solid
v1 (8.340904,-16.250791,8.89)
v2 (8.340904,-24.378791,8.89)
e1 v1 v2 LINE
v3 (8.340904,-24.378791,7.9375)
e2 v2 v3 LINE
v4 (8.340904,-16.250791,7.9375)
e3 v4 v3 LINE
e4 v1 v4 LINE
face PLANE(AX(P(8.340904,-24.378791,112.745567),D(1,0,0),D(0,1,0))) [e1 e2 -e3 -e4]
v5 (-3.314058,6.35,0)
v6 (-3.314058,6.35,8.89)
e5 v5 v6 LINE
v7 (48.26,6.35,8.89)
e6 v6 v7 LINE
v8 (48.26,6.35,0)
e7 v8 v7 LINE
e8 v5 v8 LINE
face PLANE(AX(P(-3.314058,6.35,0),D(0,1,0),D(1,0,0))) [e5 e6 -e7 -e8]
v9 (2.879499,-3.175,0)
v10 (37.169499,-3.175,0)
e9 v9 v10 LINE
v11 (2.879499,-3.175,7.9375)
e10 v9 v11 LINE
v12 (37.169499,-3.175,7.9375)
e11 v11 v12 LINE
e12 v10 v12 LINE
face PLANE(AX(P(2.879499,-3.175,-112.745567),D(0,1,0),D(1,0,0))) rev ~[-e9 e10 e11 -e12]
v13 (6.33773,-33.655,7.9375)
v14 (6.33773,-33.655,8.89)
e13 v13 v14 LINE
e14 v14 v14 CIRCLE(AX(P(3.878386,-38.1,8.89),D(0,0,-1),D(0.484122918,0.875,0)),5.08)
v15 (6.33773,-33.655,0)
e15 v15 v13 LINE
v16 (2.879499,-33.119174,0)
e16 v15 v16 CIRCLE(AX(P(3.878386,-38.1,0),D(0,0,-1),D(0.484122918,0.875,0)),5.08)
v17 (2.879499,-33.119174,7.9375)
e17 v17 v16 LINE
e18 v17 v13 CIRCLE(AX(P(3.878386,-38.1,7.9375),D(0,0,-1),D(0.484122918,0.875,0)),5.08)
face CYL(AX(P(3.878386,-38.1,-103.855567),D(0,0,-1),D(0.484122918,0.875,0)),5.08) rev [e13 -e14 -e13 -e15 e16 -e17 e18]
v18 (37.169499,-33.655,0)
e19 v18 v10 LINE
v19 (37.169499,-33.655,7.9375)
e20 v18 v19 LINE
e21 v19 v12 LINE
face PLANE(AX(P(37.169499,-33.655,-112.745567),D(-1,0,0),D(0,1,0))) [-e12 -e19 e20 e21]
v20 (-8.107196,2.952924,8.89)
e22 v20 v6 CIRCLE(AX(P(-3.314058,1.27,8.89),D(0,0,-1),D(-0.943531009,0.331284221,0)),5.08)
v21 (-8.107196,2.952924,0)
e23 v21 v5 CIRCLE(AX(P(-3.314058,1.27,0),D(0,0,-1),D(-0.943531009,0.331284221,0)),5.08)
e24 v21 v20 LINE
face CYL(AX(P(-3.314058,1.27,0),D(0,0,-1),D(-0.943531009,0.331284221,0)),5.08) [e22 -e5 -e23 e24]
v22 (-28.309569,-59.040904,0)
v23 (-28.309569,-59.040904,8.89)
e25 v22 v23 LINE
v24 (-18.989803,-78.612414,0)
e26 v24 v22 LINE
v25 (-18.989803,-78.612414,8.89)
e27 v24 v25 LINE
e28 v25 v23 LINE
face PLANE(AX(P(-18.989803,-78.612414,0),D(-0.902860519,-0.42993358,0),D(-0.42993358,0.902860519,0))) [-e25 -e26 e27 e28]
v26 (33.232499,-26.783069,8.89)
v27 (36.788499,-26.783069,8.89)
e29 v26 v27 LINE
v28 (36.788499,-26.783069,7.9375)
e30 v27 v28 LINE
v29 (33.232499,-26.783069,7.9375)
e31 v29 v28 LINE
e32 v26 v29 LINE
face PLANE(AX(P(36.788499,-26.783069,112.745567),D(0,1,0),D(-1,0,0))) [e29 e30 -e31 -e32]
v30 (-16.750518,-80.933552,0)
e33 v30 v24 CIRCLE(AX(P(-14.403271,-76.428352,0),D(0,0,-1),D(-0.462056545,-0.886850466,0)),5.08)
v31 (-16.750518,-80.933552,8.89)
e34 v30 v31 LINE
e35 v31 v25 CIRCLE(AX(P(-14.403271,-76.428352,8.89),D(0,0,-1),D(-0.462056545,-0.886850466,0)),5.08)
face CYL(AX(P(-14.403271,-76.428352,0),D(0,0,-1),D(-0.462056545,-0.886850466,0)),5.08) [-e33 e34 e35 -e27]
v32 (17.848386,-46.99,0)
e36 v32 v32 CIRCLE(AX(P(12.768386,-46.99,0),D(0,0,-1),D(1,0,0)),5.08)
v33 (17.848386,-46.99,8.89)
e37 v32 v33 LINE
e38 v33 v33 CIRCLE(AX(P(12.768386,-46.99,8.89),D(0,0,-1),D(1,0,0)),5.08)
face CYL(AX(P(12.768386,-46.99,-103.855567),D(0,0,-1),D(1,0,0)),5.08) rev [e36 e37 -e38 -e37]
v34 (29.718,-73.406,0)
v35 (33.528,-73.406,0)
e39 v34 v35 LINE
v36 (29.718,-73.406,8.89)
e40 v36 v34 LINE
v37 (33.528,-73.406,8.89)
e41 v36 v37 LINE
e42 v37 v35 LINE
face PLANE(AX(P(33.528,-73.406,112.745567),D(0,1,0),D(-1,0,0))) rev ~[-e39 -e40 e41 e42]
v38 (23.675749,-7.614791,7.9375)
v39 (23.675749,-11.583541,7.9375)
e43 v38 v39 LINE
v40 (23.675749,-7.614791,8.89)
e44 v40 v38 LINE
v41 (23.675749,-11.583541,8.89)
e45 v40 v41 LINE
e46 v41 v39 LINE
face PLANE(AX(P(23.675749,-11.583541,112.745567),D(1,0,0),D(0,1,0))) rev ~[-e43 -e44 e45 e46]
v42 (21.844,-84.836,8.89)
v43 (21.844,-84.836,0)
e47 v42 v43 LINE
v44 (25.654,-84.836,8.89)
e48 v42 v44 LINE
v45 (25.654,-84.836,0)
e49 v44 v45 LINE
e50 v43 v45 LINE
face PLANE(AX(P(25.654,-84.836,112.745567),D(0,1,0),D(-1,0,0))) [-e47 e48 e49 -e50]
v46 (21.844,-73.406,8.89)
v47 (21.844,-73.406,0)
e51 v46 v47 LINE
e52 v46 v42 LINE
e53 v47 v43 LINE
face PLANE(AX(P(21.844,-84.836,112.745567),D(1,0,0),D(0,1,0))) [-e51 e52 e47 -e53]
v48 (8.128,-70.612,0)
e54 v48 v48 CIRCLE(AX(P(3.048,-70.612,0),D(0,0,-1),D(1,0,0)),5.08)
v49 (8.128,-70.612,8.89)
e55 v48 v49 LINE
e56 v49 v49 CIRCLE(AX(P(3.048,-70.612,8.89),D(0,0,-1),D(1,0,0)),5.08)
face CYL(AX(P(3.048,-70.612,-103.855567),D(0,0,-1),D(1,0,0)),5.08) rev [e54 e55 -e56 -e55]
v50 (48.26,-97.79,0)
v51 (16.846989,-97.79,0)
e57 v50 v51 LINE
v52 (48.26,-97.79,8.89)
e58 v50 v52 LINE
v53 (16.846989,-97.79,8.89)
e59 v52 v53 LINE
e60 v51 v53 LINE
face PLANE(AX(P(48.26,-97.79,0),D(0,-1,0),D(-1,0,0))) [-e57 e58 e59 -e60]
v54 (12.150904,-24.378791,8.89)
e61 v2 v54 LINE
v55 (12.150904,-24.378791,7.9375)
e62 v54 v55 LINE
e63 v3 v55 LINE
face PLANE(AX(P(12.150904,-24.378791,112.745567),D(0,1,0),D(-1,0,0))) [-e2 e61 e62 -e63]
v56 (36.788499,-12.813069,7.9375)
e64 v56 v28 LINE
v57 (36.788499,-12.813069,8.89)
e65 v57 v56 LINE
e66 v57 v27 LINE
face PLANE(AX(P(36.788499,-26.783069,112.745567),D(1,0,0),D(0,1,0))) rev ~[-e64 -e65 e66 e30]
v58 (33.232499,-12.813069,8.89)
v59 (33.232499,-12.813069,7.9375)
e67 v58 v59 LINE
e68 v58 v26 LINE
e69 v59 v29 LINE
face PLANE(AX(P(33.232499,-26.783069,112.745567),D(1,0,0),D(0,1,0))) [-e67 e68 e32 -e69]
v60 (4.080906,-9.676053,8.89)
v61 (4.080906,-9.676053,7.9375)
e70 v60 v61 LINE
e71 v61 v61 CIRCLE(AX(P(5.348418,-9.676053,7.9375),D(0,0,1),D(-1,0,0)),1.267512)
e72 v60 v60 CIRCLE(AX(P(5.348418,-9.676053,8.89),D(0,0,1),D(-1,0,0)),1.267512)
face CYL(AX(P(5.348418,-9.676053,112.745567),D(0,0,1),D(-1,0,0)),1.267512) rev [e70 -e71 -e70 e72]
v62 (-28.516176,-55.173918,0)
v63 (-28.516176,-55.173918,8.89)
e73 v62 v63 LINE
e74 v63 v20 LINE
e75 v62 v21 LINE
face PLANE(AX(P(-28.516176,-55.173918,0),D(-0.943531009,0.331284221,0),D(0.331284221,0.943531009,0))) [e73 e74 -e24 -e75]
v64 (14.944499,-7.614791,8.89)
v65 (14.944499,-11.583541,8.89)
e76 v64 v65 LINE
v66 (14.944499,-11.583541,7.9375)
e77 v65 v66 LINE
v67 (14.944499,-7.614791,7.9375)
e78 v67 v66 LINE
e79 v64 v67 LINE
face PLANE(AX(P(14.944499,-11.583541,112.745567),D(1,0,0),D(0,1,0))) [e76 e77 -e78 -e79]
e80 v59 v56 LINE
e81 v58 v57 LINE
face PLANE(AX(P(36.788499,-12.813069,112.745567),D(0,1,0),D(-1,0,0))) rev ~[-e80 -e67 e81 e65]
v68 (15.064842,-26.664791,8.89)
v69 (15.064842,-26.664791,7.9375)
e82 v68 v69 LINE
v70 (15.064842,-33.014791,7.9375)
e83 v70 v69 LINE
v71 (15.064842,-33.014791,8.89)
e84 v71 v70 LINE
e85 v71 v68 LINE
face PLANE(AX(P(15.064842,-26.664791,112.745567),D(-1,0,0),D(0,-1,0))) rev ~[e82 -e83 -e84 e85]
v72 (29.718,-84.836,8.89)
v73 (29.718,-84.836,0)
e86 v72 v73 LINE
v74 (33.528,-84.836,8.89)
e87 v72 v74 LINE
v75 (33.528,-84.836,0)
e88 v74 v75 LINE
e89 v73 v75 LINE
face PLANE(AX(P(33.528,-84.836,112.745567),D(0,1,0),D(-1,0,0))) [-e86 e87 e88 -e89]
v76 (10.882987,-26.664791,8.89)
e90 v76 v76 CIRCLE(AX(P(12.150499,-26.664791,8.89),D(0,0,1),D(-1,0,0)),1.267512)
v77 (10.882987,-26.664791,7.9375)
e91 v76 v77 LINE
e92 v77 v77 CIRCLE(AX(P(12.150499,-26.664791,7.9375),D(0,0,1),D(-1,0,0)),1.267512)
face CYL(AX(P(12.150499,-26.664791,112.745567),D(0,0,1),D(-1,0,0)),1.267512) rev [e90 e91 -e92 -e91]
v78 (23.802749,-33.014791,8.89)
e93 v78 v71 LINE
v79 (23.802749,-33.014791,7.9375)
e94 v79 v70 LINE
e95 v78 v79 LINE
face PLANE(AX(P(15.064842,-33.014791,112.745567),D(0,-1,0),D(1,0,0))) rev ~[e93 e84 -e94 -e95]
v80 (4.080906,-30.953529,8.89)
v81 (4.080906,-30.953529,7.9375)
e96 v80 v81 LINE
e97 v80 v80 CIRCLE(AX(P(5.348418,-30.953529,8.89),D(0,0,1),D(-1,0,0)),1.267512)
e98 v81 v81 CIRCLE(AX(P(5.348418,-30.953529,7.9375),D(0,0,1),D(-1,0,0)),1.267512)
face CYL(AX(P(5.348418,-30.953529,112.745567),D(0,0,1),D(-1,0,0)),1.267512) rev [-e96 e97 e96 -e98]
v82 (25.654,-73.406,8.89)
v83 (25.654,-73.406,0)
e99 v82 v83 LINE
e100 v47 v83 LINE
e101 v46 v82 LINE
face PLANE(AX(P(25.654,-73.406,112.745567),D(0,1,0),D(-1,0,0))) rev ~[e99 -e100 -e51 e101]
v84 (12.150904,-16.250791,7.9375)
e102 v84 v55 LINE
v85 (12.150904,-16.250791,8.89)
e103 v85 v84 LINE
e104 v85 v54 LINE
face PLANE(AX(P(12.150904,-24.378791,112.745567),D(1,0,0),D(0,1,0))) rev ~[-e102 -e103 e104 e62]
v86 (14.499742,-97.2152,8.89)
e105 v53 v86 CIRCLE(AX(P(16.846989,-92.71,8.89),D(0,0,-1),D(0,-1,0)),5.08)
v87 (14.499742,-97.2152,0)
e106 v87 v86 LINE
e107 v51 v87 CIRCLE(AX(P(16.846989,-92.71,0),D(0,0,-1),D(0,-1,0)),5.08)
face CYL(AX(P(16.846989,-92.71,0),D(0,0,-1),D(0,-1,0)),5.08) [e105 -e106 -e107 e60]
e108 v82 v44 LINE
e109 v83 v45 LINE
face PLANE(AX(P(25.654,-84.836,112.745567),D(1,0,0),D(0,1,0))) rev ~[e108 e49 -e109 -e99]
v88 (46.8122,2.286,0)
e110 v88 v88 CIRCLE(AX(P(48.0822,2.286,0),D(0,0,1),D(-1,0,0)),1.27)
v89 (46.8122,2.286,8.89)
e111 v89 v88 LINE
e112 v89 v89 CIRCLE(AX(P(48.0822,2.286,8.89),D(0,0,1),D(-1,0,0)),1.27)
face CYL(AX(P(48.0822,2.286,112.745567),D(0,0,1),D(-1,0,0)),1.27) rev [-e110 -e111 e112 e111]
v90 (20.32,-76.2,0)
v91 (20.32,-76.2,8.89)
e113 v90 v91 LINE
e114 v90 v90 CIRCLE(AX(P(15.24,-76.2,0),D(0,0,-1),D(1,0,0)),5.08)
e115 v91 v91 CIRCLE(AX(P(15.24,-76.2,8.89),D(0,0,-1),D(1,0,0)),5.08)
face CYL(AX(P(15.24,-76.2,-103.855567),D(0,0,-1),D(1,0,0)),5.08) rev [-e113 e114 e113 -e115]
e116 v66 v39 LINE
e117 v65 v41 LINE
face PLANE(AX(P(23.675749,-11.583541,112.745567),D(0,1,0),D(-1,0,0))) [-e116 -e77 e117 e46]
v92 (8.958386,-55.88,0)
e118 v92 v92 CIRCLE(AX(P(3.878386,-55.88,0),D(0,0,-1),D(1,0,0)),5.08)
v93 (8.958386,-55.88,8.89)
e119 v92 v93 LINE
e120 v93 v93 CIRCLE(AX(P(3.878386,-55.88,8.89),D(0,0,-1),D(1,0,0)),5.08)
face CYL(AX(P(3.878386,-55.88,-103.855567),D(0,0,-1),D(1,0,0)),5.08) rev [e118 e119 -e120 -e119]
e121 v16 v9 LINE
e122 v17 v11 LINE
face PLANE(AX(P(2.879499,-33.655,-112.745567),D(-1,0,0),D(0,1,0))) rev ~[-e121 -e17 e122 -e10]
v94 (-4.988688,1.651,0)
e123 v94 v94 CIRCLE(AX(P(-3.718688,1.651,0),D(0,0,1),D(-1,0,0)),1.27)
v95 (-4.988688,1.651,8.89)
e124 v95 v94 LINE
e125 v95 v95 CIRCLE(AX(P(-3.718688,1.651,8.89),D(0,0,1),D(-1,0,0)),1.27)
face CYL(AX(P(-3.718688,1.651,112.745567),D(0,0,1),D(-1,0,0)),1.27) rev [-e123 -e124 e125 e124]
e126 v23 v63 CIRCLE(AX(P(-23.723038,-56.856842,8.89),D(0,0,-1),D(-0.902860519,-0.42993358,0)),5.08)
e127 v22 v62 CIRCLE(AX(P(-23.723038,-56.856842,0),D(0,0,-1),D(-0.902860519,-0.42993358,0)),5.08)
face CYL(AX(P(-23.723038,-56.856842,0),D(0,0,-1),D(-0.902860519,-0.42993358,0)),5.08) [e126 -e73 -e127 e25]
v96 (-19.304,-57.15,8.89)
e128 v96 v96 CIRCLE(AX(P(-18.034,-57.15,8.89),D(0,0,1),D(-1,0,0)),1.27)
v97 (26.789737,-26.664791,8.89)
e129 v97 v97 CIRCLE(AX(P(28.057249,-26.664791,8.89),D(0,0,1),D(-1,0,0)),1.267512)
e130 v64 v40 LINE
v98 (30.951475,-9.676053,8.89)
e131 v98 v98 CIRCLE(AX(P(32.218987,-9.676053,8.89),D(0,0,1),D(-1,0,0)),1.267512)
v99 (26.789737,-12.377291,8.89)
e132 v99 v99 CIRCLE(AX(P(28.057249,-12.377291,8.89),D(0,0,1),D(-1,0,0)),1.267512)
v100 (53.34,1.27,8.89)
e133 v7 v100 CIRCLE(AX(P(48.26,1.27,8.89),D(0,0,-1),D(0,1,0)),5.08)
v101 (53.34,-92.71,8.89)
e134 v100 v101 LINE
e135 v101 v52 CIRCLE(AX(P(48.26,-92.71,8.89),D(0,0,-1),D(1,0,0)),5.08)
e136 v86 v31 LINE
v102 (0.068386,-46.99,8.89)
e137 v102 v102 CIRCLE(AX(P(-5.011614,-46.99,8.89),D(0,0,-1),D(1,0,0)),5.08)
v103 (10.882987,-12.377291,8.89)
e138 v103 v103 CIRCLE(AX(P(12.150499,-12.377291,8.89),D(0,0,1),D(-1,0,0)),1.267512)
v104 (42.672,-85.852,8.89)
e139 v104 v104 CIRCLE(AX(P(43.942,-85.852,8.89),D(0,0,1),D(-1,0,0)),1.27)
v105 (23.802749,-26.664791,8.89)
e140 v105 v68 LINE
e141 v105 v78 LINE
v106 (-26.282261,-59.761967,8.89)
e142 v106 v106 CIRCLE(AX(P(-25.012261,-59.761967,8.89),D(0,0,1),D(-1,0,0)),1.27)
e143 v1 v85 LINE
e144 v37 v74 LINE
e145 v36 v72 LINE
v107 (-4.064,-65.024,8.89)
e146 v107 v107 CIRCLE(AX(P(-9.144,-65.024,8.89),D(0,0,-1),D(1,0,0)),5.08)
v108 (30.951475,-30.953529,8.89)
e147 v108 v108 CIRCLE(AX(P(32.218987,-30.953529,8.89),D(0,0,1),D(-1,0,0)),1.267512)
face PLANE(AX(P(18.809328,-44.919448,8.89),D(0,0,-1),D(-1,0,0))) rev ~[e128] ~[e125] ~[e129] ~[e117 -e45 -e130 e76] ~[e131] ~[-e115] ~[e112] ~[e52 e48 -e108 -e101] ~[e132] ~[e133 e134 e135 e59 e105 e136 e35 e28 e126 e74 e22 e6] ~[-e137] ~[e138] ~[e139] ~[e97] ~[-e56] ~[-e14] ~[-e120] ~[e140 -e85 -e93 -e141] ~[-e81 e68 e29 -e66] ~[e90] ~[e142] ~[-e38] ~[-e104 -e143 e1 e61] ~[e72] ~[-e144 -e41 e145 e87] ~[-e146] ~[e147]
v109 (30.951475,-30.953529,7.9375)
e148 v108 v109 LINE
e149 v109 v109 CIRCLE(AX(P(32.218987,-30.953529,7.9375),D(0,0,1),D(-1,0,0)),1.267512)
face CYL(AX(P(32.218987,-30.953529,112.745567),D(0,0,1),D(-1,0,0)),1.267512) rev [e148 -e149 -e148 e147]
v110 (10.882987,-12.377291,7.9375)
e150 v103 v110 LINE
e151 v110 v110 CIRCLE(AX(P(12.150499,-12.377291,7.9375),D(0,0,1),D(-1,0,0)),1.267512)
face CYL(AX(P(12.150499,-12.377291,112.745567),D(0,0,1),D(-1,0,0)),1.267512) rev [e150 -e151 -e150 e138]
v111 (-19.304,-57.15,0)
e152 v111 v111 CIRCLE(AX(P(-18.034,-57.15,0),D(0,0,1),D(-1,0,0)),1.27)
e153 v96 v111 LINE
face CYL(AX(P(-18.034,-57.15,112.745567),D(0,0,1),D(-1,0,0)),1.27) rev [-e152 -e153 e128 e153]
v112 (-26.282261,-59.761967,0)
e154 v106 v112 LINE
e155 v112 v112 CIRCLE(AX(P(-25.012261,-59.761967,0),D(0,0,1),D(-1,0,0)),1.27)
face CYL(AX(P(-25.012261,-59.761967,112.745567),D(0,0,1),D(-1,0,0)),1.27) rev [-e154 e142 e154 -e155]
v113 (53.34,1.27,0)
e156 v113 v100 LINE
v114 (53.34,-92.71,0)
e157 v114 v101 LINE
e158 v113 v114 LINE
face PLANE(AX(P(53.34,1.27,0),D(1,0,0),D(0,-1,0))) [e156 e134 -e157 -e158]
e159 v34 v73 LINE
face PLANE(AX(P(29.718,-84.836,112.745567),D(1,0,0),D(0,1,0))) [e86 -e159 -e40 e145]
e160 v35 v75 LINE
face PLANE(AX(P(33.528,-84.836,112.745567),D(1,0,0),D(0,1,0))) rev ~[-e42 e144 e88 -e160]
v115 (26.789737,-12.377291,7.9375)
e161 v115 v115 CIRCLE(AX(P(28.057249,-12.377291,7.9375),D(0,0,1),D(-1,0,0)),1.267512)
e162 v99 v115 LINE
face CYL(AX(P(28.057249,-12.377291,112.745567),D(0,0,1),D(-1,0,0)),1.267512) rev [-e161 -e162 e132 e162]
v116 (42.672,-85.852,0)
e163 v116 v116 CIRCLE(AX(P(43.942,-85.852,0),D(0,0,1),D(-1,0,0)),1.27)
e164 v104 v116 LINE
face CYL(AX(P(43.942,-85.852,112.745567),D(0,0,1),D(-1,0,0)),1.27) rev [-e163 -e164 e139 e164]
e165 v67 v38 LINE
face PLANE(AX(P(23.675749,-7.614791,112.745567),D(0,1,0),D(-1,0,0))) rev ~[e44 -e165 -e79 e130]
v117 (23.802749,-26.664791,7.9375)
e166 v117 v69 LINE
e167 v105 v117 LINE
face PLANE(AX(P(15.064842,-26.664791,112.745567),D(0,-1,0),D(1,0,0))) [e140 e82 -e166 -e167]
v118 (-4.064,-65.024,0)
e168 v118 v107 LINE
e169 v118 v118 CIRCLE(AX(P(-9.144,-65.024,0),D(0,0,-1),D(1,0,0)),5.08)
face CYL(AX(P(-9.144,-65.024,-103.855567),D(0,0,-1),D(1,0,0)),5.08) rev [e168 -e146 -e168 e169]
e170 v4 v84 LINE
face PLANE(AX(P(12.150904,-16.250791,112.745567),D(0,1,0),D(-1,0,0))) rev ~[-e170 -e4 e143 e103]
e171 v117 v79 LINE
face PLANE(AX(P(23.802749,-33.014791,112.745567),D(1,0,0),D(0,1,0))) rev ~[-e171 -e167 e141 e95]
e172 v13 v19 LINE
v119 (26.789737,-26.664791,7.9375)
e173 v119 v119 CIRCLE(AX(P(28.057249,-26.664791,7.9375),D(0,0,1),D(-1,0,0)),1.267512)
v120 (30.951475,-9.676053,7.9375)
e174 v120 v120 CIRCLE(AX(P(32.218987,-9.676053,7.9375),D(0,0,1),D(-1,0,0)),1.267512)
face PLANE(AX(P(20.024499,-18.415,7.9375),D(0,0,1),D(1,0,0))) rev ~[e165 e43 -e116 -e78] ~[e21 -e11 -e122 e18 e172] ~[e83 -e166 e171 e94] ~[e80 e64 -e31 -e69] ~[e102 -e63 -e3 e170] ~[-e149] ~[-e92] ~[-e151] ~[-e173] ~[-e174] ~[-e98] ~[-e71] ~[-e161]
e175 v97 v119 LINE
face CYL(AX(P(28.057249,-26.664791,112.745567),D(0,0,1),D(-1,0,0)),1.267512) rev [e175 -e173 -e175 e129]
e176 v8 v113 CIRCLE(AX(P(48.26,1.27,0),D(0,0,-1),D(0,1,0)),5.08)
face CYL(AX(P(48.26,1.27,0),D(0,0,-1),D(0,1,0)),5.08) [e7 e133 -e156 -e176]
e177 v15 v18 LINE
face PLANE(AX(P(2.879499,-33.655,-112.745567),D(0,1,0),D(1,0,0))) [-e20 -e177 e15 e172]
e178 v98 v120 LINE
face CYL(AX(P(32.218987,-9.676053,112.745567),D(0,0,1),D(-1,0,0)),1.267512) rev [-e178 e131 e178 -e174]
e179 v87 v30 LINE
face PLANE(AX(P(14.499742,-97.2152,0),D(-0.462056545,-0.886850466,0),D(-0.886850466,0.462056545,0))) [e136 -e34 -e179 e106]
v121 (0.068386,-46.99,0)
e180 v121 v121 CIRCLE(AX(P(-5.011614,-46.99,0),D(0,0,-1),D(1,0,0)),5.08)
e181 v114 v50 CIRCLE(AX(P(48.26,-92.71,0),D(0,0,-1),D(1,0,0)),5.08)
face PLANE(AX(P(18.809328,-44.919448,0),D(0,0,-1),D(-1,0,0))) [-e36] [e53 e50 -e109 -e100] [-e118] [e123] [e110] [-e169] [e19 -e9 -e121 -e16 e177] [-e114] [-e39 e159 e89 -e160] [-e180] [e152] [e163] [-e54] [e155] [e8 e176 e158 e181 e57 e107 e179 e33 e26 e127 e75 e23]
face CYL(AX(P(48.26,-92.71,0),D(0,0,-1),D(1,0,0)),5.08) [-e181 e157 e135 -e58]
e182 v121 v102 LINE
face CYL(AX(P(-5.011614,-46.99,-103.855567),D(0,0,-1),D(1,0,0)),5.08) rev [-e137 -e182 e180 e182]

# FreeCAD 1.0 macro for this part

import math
import FreeCAD as App
import Part
import Sketcher

V = App.Vector
Q = App.Units.Quantity

doc = App.newDocument("Part")
body = doc.addObject("PartDesign::Body", "Body")

sketch1 = body.newObject("Sketcher::SketchObject", "Sketch")
sketch1.AttachmentSupport = (doc.getObject("XY_Plane"), [""])
sketch1.MapMode = "FlatFace"
sketch1.addGeometry(Part.LineSegment(V(48.26, 6.35, 0), V(-3.314058, 6.35, 0)), False)
sketch1.addGeometry(Part.ArcOfCircle(Part.Circle(V(-3.314058, 1.27, 0), V(0, 0, 1), 5.08), math.radians(90), math.radians(160.653259)), False)
sketch1.addGeometry(Part.LineSegment(V(-8.107196, 2.952924, 0), V(-28.516176, -55.173918, 0)), False)
sketch1.addGeometry(Part.ArcOfCircle(Part.Circle(V(-23.723038, -56.856842, 0), V(0, 0, 1), 5.08), math.radians(160.653259), math.radians(205.463345)), False)
sketch1.addGeometry(Part.LineSegment(V(-28.309569, -59.040904, 0), V(-18.989803, -78.612414, 0)), False)
sketch1.addGeometry(Part.ArcOfCircle(Part.Circle(V(-14.403271, -76.428352, 0), V(0, 0, 1), 5.08), math.radians(-154.536655), math.radians(-117.519892)), False)
sketch1.addGeometry(Part.LineSegment(V(-16.750518, -80.933552, 0), V(14.499742, -97.2152, 0)), False)
sketch1.addGeometry(Part.ArcOfCircle(Part.Circle(V(16.846989, -92.71, 0), V(0, 0, 1), 5.08), math.radians(-117.519892), math.radians(-90)), False)
sketch1.addGeometry(Part.LineSegment(V(16.846989, -97.79, 0), V(48.26, -97.79, 0)), False)
sketch1.addGeometry(Part.ArcOfCircle(Part.Circle(V(48.26, -92.71, 0), V(0, 0, 1), 5.08), math.radians(-90), math.radians(0)), False)
sketch1.addGeometry(Part.LineSegment(V(53.34, -92.71, 0), V(53.34, 1.27, 0)), False)
sketch1.addGeometry(Part.ArcOfCircle(Part.Circle(V(48.26, 1.27, 0), V(0, 0, 1), 5.08), math.radians(0), math.radians(90)), False)
sketch1.addConstraint(Sketcher.Constraint("Tangent", 0, 2, 1, 1))
sketch1.addConstraint(Sketcher.Constraint("Tangent", 1, 2, 2, 1))
sketch1.addConstraint(Sketcher.Constraint("Tangent", 2, 2, 3, 1))
sketch1.addConstraint(Sketcher.Constraint("Tangent", 3, 2, 4, 1))
sketch1.addConstraint(Sketcher.Constraint("Tangent", 4, 2, 5, 1))
sketch1.addConstraint(Sketcher.Constraint("Tangent", 5, 2, 6, 1))
sketch1.addConstraint(Sketcher.Constraint("Tangent", 6, 2, 7, 1))
sketch1.addConstraint(Sketcher.Constraint("Tangent", 7, 2, 8, 1))
sketch1.addConstraint(Sketcher.Constraint("Tangent", 8, 2, 9, 1))
sketch1.addConstraint(Sketcher.Constraint("Tangent", 9, 2, 10, 1))
sketch1.addConstraint(Sketcher.Constraint("Tangent", 10, 2, 11, 1))
sketch1.addConstraint(Sketcher.Constraint("Tangent", 11, 2, 0, 1))
sketch1.addConstraint(Sketcher.Constraint("Horizontal", 0))
sketch1.addConstraint(Sketcher.Constraint("Horizontal", 8))
sketch1.addConstraint(Sketcher.Constraint("Vertical", 10))
sketch1.addConstraint(Sketcher.Constraint("Equal", 1, 3))
sketch1.addConstraint(Sketcher.Constraint("Equal", 3, 5))
sketch1.addConstraint(Sketcher.Constraint("Equal", 5, 7))
sketch1.addConstraint(Sketcher.Constraint("Equal", 7, 9))
sketch1.addConstraint(Sketcher.Constraint("Equal", 9, 11))
sketch1.addConstraint(Sketcher.Constraint("Radius", 1, Q("0.2 in")))
sketch1.addConstraint(Sketcher.Constraint("DistanceY", 10, 1, 10, 2, Q("3.7 in")))
sketch1.addConstraint(Sketcher.Constraint("DistanceX", -1, 1, 9, 3, Q("1.9 in")))
sketch1.addConstraint(Sketcher.Constraint("DistanceY", -1, 1, 1, 3, Q("0.05 in")))
sketch1.addConstraint(Sketcher.Constraint("DistanceX", 0, 2, 0, 1, Q("51.574058 mm")))
sketch1.addConstraint(Sketcher.Constraint("DistanceX", 8, 1, 8, 2, Q("31.413011 mm")))
sketch1.addConstraint(Sketcher.Constraint("DistanceY", 6, 2, -1, 1, Q("97.2152 mm")))
sketch1.addConstraint(Sketcher.Constraint("DistanceX", 3, 2, 5, 3, Q("13.906298 mm")))
sketch1.addConstraint(Sketcher.Constraint("Distance", 2, Q("61.60565 mm")))
sketch1.addConstraint(Sketcher.Constraint("Distance", 6, Q("35.23735 mm")))
pad1 = body.newObject("PartDesign::Pad", "Pad")
pad1.Profile = sketch1
pad1.Length = Q("0.35 in")

sketch2 = body.newObject("Sketcher::SketchObject", "Sketch001")
sketch2.AttachmentSupport = (doc.getObject("XY_Plane"), [""])
sketch2.MapMode = "FlatFace"
sketch2.addGeometry(Part.Circle(V(5.348418, -30.953529, 0), V(0, 0, 1), 1.267512), False)
sketch2.addGeometry(Part.Circle(V(32.218987, -9.676053, 0), V(0, 0, 1), 1.267512), False)
sketch2.addGeometry(Part.Circle(V(12.150499, -12.377291, 0), V(0, 0, 1), 1.267512), False)
sketch2.addGeometry(Part.Circle(V(12.150499, -26.664791, 0), V(0, 0, 1), 1.267512), False)
sketch2.addGeometry(Part.Circle(V(28.057249, -12.377291, 0), V(0, 0, 1), 1.267512), False)
sketch2.addGeometry(Part.Circle(V(5.348418, -9.676053, 0), V(0, 0, 1), 1.267512), False)
sketch2.addGeometry(Part.Circle(V(32.218987, -30.953529, 0), V(0, 0, 1), 1.267512), False)
sketch2.addGeometry(Part.Circle(V(28.057249, -26.664791, 0), V(0, 0, 1), 1.267512), False)
sketch2.addGeometry(Part.LineSegment(V(12.150904, -16.250791, 0), V(12.150904, -24.378791, 0)), False)
sketch2.addGeometry(Part.LineSegment(V(12.150904, -24.378791, 0), V(8.340904, -24.378791, 0)), False)
sketch2.addGeometry(Part.LineSegment(V(8.340904, -24.378791, 0), V(8.340904, -16.250791, 0)), False)
sketch2.addGeometry(Part.LineSegment(V(8.340904, -16.250791, 0), V(12.150904, -16.250791, 0)), False)
sketch2.addGeometry(Part.LineSegment(V(23.802749, -33.014791, 0), V(15.064842, -33.014791, 0)), False)
sketch2.addGeometry(Part.LineSegment(V(15.064842, -33.014791, 0), V(15.064842, -26.664791, 0)), False)
sketch2.addGeometry(Part.LineSegment(V(15.064842, -26.664791, 0), V(23.802749, -26.664791, 0)), False)
sketch2.addGeometry(Part.LineSegment(V(23.802749, -26.664791, 0), V(23.802749, -33.014791, 0)), False)
sketch2.addGeometry(Part.LineSegment(V(36.788499, -12.813069, 0), V(36.788499, -26.783069, 0)), False)
sketch2.addGeometry(Part.LineSegment(V(36.788499, -26.783069, 0), V(33.232499, -26.783069, 0)), False)
sketch2.addGeometry(Part.LineSegment(V(33.232499, -26.783069, 0), V(33.232499, -12.813069, 0)), False)
sketch2.addGeometry(Part.LineSegment(V(33.232499, -12.813069, 0), V(36.788499, -12.813069, 0)), False)
sketch2.addGeometry(Part.LineSegment(V(23.675749, -7.614791, 0), V(23.675749, -11.583541, 0)), False)
sketch2.addGeometry(Part.LineSegment(V(23.675749, -11.583541, 0), V(14.944499, -11.583541, 0)), False)
sketch2.addGeometry(Part.LineSegment(V(14.944499, -11.583541, 0), V(14.944499, -7.614791, 0)), False)
sketch2.addGeometry(Part.LineSegment(V(14.944499, -7.614791, 0), V(23.675749, -7.614791, 0)), False)
sketch2.addConstraint(Sketcher.Constraint("Coincident", 8, 2, 9, 1))
sketch2.addConstraint(Sketcher.Constraint("Coincident", 9, 2, 10, 1))
sketch2.addConstraint(Sketcher.Constraint("Coincident", 10, 2, 11, 1))
sketch2.addConstraint(Sketcher.Constraint("Coincident", 11, 2, 8, 1))
sketch2.addConstraint(Sketcher.Constraint("Coincident", 12, 2, 13, 1))
sketch2.addConstraint(Sketcher.Constraint("Coincident", 13, 2, 14, 1))
sketch2.addConstraint(Sketcher.Constraint("Coincident", 14, 2, 15, 1))
sketch2.addConstraint(Sketcher.Constraint("Coincident", 15, 2, 12, 1))
sketch2.addConstraint(Sketcher.Constraint("Coincident", 16, 2, 17, 1))
sketch2.addConstraint(Sketcher.Constraint("Coincident", 17, 2, 18, 1))
sketch2.addConstraint(Sketcher.Constraint("Coincident", 18, 2, 19, 1))
sketch2.addConstraint(Sketcher.Constraint("Coincident", 19, 2, 16, 1))
sketch2.addConstraint(Sketcher.Constraint("Coincident", 20, 2, 21, 1))
sketch2.addConstraint(Sketcher.Constraint("Coincident", 21, 2, 22, 1))
sketch2.addConstraint(Sketcher.Constraint("Coincident", 22, 2, 23, 1))
sketch2.addConstraint(Sketcher.Constraint("Coincident", 23, 2, 20, 1))
sketch2.addConstraint(Sketcher.Constraint("Vertical", 8))
sketch2.addConstraint(Sketcher.Constraint("Horizontal", 9))
sketch2.addConstraint(Sketcher.Constraint("Vertical", 10))
sketch2.addConstraint(Sketcher.Constraint("Horizontal", 11))
sketch2.addConstraint(Sketcher.Constraint("Horizontal", 12))
sketch2.addConstraint(Sketcher.Constraint("Vertical", 13))
sketch2.addConstraint(Sketcher.Constraint("Horizontal", 14))
sketch2.addConstraint(Sketcher.Constraint("Vertical", 15))
sketch2.addConstraint(Sketcher.Constraint("Vertical", 16))
sketch2.addConstraint(Sketcher.Constraint("Horizontal", 17))
sketch2.addConstraint(Sketcher.Constraint("Vertical", 18))
sketch2.addConstraint(Sketcher.Constraint("Horizontal", 19))
sketch2.addConstraint(Sketcher.Constraint("Vertical", 20))
sketch2.addConstraint(Sketcher.Constraint("Horizontal", 21))
sketch2.addConstraint(Sketcher.Constraint("Vertical", 22))
sketch2.addConstraint(Sketcher.Constraint("Horizontal", 23))
sketch2.addConstraint(Sketcher.Constraint("Equal", 0, 1))
sketch2.addConstraint(Sketcher.Constraint("Equal", 1, 2))
sketch2.addConstraint(Sketcher.Constraint("Equal", 2, 3))
sketch2.addConstraint(Sketcher.Constraint("Equal", 3, 4))
sketch2.addConstraint(Sketcher.Constraint("Equal", 4, 5))
sketch2.addConstraint(Sketcher.Constraint("Equal", 5, 6))
sketch2.addConstraint(Sketcher.Constraint("Equal", 6, 7))
sketch2.addConstraint(Sketcher.Constraint("Horizontal", 2, 3, 4, 3))
sketch2.addConstraint(Sketcher.Constraint("Horizontal", 1, 3, 5, 3))
sketch2.addConstraint(Sketcher.Constraint("Horizontal", 0, 3, 6, 3))
sketch2.addConstraint(Sketcher.Constraint("Horizontal", 3, 3, 7, 3))
sketch2.addConstraint(Sketcher.Constraint("Horizontal", 7, 3, 13, 2))
sketch2.addConstraint(Sketcher.Constraint("Vertical", 2, 3, 3, 3))
sketch2.addConstraint(Sketcher.Constraint("Vertical", 0, 3, 5, 3))
sketch2.addConstraint(Sketcher.Constraint("Vertical", 1, 3, 6, 3))
sketch2.addConstraint(Sketcher.Constraint("Vertical", 4, 3, 7, 3))
sketch2.addConstraint(Sketcher.Constraint("DistanceX", 9, 2, 9, 1, Q("0.15 in")))
sketch2.addConstraint(Sketcher.Constraint("DistanceX", 17, 2, 17, 1, Q("0.14 in")))
sketch2.addConstraint(Sketcher.Constraint("DistanceY", 8, 2, 8, 1, Q("0.32 in")))
sketch2.addConstraint(Sketcher.Constraint("DistanceY", 13, 1, 13, 2, Q("0.25 in")))
sketch2.addConstraint(Sketcher.Constraint("DistanceY", 16, 2, 16, 1, Q("0.55 in")))
sketch2.addConstraint(Sketcher.Constraint("DistanceX", 21, 2, 21, 1, Q("0.34375 in")))
sketch2.addConstraint(Sketcher.Constraint("DistanceY", 20, 2, 20, 1, Q("0.15625 in")))
sketch2.addConstraint(Sketcher.Constraint("DistanceY", 3, 3, 8, 2, Q("0.09 in")))
sketch2.addConstraint(Sketcher.Constraint("DistanceX", 2, 3, 21, 2, Q("0.11 in")))
sketch2.addConstraint(Sketcher.Constraint("DistanceY", 11, 2, 22, 2, Q("0.34 in")))
sketch2.addConstraint(Sketcher.Constraint("DistanceY", 3, 3, 2, 3, Q("0.5625 in")))
sketch2.addConstraint(Sketcher.Constraint("DistanceX", 7, 3, 16, 2, Q("0.34375 in")))
sketch2.addConstraint(Sketcher.Constraint("Diameter", 0, Q("2.535024 mm")))
sketch2.addConstraint(Sketcher.Constraint("DistanceX", 14, 2, 7, 3, Q("0.1675 in")))
sketch2.addConstraint(Sketcher.Constraint("DistanceX", 20, 2, 4, 3, Q("0.1725 in")))
sketch2.addConstraint(Sketcher.Constraint("DistanceX", -1, 1, 2, 3, Q("12.150499 mm")))
sketch2.addConstraint(Sketcher.Constraint("DistanceX", 12, 2, 12, 1, Q("8.737906 mm")))
sketch2.addConstraint(Sketcher.Constraint("DistanceY", 0, 3, -1, 1, Q("30.953529 mm")))
sketch2.addConstraint(Sketcher.Constraint("DistanceY", 2, 3, -1, 1, Q("12.377291 mm")))
sketch2.addConstraint(Sketcher.Constraint("DistanceY", 16, 2, -1, 1, Q("26.783069 mm")))
sketch2.addConstraint(Sketcher.Constraint("DistanceX", 0, 3, 1, 3, Q("26.870569 mm")))
sketch2.addConstraint(Sketcher.Constraint("DistanceX", 0, 3, 2, 3, Q("6.802081 mm")))
sketch2.addConstraint(Sketcher.Constraint("DistanceY", 2, 3, 1, 3, Q("2.701238 mm")))
sketch2.addConstraint(Sketcher.Constraint("DistanceX", -1, 1, 8, 2, Q("12.150904 mm")))
pocket1 = body.newObject("PartDesign::Pocket", "Pocket")
pocket1.Profile = sketch2
pocket1.Type = "ThroughAll"
pocket1.Midplane = True

sketch3 = body.newObject("Sketcher::SketchObject", "Sketch002")
sketch3.AttachmentSupport = (doc.getObject("XY_Plane"), [""])
sketch3.MapMode = "FlatFace"
sketch3.addGeometry(Part.LineSegment(V(2.879499, -3.175, 0), V(2.879499, -33.655, 0)), False)
sketch3.addGeometry(Part.LineSegment(V(2.879499, -33.655, 0), V(37.169499, -33.655, 0)), False)
sketch3.addGeometry(Part.LineSegment(V(37.169499, -33.655, 0), V(37.169499, -3.175, 0)), False)
sketch3.addGeometry(Part.LineSegment(V(37.169499, -3.175, 0), V(2.879499, -3.175, 0)), False)
sketch3.addConstraint(Sketcher.Constraint("Coincident", 0, 2, 1, 1))
sketch3.addConstraint(Sketcher.Constraint("Coincident", 1, 2, 2, 1))
sketch3.addConstraint(Sketcher.Constraint("Coincident", 2, 2, 3, 1))
sketch3.addConstraint(Sketcher.Constraint("Coincident", 3, 2, 0, 1))
sketch3.addConstraint(Sketcher.Constraint("Vertical", 0))
sketch3.addConstraint(Sketcher.Constraint("Horizontal", 1))
sketch3.addConstraint(Sketcher.Constraint("Vertical", 2))
sketch3.addConstraint(Sketcher.Constraint("Horizontal", 3))
sketch3.addConstraint(Sketcher.Constraint("DistanceY", 0, 2, 0, 1, Q("1.2 in")))
sketch3.addConstraint(Sketcher.Constraint("DistanceX", 1, 1, 1, 2, Q("1.35 in")))
sketch3.addConstraint(Sketcher.Constraint("DistanceY", 0, 2, -1, 1, Q("1.325 in")))
sketch3.addConstraint(Sketcher.Constraint("DistanceX", -1, 1, 0, 2, Q("2.879499 mm")))
pocket2 = body.newObject("PartDesign::Pocket", "Pocket001")
pocket2.Profile = sketch3
pocket2.Type = "TwoLengths"
pocket2.Length = Q("0.3125 in")
pocket2.Length2 = 112.745567
pocket2.Reversed = True

sketch4 = body.newObject("Sketcher::SketchObject", "Sketch003")
sketch4.AttachmentSupport = (doc.getObject("XY_Plane"), [""])
sketch4.MapMode = "FlatFace"
sketch4.AttachmentOffset = App.Placement(V(0, 0, 0.35 * 25.4), App.Rotation())
sketch4.addGeometry(Part.Circle(V(3.878386, -38.1, 0), V(0, 0, 1), 5.08), False)
sketch4.addGeometry(Part.Circle(V(-5.011614, -46.99, 0), V(0, 0, 1), 5.08), False)
sketch4.addGeometry(Part.Circle(V(3.878386, -55.88, 0), V(0, 0, 1), 5.08), False)
sketch4.addGeometry(Part.Circle(V(12.768386, -46.99, 0), V(0, 0, 1), 5.08), False)
sketch4.addGeometry(Part.Circle(V(-9.144, -65.024, 0), V(0, 0, 1), 5.08), False)
sketch4.addGeometry(Part.Circle(V(3.048, -70.612, 0), V(0, 0, 1), 5.08), False)
sketch4.addGeometry(Part.Circle(V(15.24, -76.2, 0), V(0, 0, 1), 5.08), False)
sketch4.addConstraint(Sketcher.Constraint("Equal", 0, 1))
sketch4.addConstraint(Sketcher.Constraint("Equal", 1, 2))
sketch4.addConstraint(Sketcher.Constraint("Equal", 2, 3))
sketch4.addConstraint(Sketcher.Constraint("Equal", 3, 4))
sketch4.addConstraint(Sketcher.Constraint("Equal", 4, 5))
sketch4.addConstraint(Sketcher.Constraint("Equal", 5, 6))
sketch4.addConstraint(Sketcher.Constraint("Horizontal", 1, 3, 3, 3))
sketch4.addConstraint(Sketcher.Constraint("Vertical", 0, 3, 2, 3))
sketch4.addConstraint(Sketcher.Constraint("Diameter", 0, Q("0.4 in")))
sketch4.addConstraint(Sketcher.Constraint("DistanceY", 6, 3, -1, 1, Q("3 in")))
sketch4.addConstraint(Sketcher.Constraint("DistanceY", 0, 3, -1, 1, Q("1.5 in")))
sketch4.addConstraint(Sketcher.Constraint("DistanceY", 2, 3, -1, 1, Q("2.2 in")))
sketch4.addConstraint(Sketcher.Constraint("DistanceX", -1, 1, 6, 3, Q("0.6 in")))
sketch4.addConstraint(Sketcher.Constraint("DistanceX", 1, 3, 3, 3, Q("0.7 in")))
sketch4.addConstraint(Sketcher.Constraint("DistanceY", 1, 3, -1, 1, Q("1.85 in")))
sketch4.addConstraint(Sketcher.Constraint("DistanceX", 4, 3, -1, 1, Q("0.36 in")))
sketch4.addConstraint(Sketcher.Constraint("DistanceY", 4, 3, -1, 1, Q("2.56 in")))
sketch4.addConstraint(Sketcher.Constraint("DistanceX", -1, 1, 5, 3, Q("0.12 in")))
sketch4.addConstraint(Sketcher.Constraint("DistanceY", 5, 3, -1, 1, Q("2.78 in")))
sketch4.addConstraint(Sketcher.Constraint("DistanceX", 1, 3, 0, 3, Q("0.35 in")))
sketch4.addConstraint(Sketcher.Constraint("DistanceX", -1, 1, 0, 3, Q("3.878386 mm")))
pocket3 = body.newObject("PartDesign::Pocket", "Pocket002")
pocket3.Profile = sketch4
pocket3.Type = "ThroughAll"
pocket3.Midplane = True

sketch5 = body.newObject("Sketcher::SketchObject", "Sketch004")
sketch5.AttachmentSupport = (doc.getObject("XY_Plane"), [""])
sketch5.MapMode = "FlatFace"
sketch5.addGeometry(Part.Circle(V(48.0822, 2.286, 0), V(0, 0, 1), 1.27), False)
sketch5.addGeometry(Part.Circle(V(-3.718688, 1.651, 0), V(0, 0, 1), 1.27), False)
sketch5.addGeometry(Part.Circle(V(-25.012261, -59.761967, 0), V(0, 0, 1), 1.27), False)
sketch5.addConstraint(Sketcher.Constraint("Equal", 0, 1))
sketch5.addConstraint(Sketcher.Constraint("Equal", 1, 2))
sketch5.addConstraint(Sketcher.Constraint("Diameter", 0, Q("0.1 in")))
sketch5.addConstraint(Sketcher.Constraint("DistanceY", -1, 1, 0, 3, Q("0.09 in")))
sketch5.addConstraint(Sketcher.Constraint("DistanceX", -1, 1, 0, 3, Q("1.893 in")))
sketch5.addConstraint(Sketcher.Constraint("DistanceY", -1, 1, 1, 3, Q("0.065 in")))
sketch5.addConstraint(Sketcher.Constraint("DistanceX", 2, 3, -1, 1, Q("25.012261 mm")))
sketch5.addConstraint(Sketcher.Constraint("DistanceX", 1, 3, -1, 1, Q("3.718688 mm")))
sketch5.addConstraint(Sketcher.Constraint("DistanceY", 2, 3, -1, 1, Q("59.761967 mm")))
pocket4 = body.newObject("PartDesign::Pocket", "Pocket003")
pocket4.Profile = sketch5
pocket4.Type = "ThroughAll"
pocket4.Midplane = True

sketch6 = body.newObject("Sketcher::SketchObject", "Sketch005")
sketch6.AttachmentSupport = (doc.getObject("XY_Plane"), [""])
sketch6.MapMode = "FlatFace"
sketch6.addGeometry(Part.Circle(V(-18.034, -57.15, 0), V(0, 0, 1), 1.27), False)
sketch6.addGeometry(Part.Circle(V(43.942, -85.852, 0), V(0, 0, 1), 1.27), False)
sketch6.addConstraint(Sketcher.Constraint("Equal", 0, 1))
sketch6.addConstraint(Sketcher.Constraint("Diameter", 0, Q("0.1 in")))
sketch6.addConstraint(Sketcher.Constraint("DistanceX", 0, 3, -1, 1, Q("0.71 in")))
sketch6.addConstraint(Sketcher.Constraint("DistanceY", 0, 3, -1, 1, Q("2.25 in")))
sketch6.addConstraint(Sketcher.Constraint("DistanceX", -1, 1, 1, 3, Q("1.73 in")))
sketch6.addConstraint(Sketcher.Constraint("DistanceY", 1, 3, -1, 1, Q("3.38 in")))
pocket5 = body.newObject("PartDesign::Pocket", "Pocket004")
pocket5.Profile = sketch6
pocket5.Type = "ThroughAll"
pocket5.Midplane = True

sketch7 = body.newObject("Sketcher::SketchObject", "Sketch006")
sketch7.AttachmentSupport = (doc.getObject("XY_Plane"), [""])
sketch7.MapMode = "FlatFace"
sketch7.addGeometry(Part.LineSegment(V(25.654, -73.406, 0), V(25.654, -84.836, 0)), False)
sketch7.addGeometry(Part.LineSegment(V(25.654, -84.836, 0), V(21.844, -84.836, 0)), False)
sketch7.addGeometry(Part.LineSegment(V(21.844, -84.836, 0), V(21.844, -73.406, 0)), False)
sketch7.addGeometry(Part.LineSegment(V(21.844, -73.406, 0), V(25.654, -73.406, 0)), False)
sketch7.addGeometry(Part.LineSegment(V(33.528, -73.406, 0), V(33.528, -84.836, 0)), False)
sketch7.addGeometry(Part.LineSegment(V(33.528, -84.836, 0), V(29.718, -84.836, 0)), False)
sketch7.addGeometry(Part.LineSegment(V(29.718, -84.836, 0), V(29.718, -73.406, 0)), False)
sketch7.addGeometry(Part.LineSegment(V(29.718, -73.406, 0), V(33.528, -73.406, 0)), False)
sketch7.addConstraint(Sketcher.Constraint("Coincident", 0, 2, 1, 1))
sketch7.addConstraint(Sketcher.Constraint("Coincident", 1, 2, 2, 1))
sketch7.addConstraint(Sketcher.Constraint("Coincident", 2, 2, 3, 1))
sketch7.addConstraint(Sketcher.Constraint("Coincident", 3, 2, 0, 1))
sketch7.addConstraint(Sketcher.Constraint("Coincident", 4, 2, 5, 1))
sketch7.addConstraint(Sketcher.Constraint("Coincident", 5, 2, 6, 1))
sketch7.addConstraint(Sketcher.Constraint("Coincident", 6, 2, 7, 1))
sketch7.addConstraint(Sketcher.Constraint("Coincident", 7, 2, 4, 1))
sketch7.addConstraint(Sketcher.Constraint("Vertical", 0))
sketch7.addConstraint(Sketcher.Constraint("Horizontal", 1))
sketch7.addConstraint(Sketcher.Constraint("Vertical", 2))
sketch7.addConstraint(Sketcher.Constraint("Horizontal", 3))
sketch7.addConstraint(Sketcher.Constraint("Vertical", 4))
sketch7.addConstraint(Sketcher.Constraint("Horizontal", 5))
sketch7.addConstraint(Sketcher.Constraint("Vertical", 6))
sketch7.addConstraint(Sketcher.Constraint("Horizontal", 7))
sketch7.addConstraint(Sketcher.Constraint("Horizontal", 1, 2, 4, 2))
sketch7.addConstraint(Sketcher.Constraint("Horizontal", 3, 2, 6, 2))
sketch7.addConstraint(Sketcher.Constraint("Equal", 3, 5))
sketch7.addConstraint(Sketcher.Constraint("DistanceX", 1, 2, 1, 1, Q("0.15 in")))
sketch7.addConstraint(Sketcher.Constraint("DistanceY", 0, 2, 0, 1, Q("0.45 in")))
sketch7.addConstraint(Sketcher.Constraint("DistanceX", -1, 1, 0, 2, Q("1.01 in")))
sketch7.addConstraint(Sketcher.Constraint("DistanceY", 0, 2, -1, 1, Q("3.34 in")))
sketch7.addConstraint(Sketcher.Constraint("DistanceX", -1, 1, 4, 2, Q("1.32 in")))
pocket6 = body.newObject("PartDesign::Pocket", "Pocket005")
pocket6.Profile = sketch7
pocket6.Type = "ThroughAll"
pocket6.Midplane = True

doc.recompute()
